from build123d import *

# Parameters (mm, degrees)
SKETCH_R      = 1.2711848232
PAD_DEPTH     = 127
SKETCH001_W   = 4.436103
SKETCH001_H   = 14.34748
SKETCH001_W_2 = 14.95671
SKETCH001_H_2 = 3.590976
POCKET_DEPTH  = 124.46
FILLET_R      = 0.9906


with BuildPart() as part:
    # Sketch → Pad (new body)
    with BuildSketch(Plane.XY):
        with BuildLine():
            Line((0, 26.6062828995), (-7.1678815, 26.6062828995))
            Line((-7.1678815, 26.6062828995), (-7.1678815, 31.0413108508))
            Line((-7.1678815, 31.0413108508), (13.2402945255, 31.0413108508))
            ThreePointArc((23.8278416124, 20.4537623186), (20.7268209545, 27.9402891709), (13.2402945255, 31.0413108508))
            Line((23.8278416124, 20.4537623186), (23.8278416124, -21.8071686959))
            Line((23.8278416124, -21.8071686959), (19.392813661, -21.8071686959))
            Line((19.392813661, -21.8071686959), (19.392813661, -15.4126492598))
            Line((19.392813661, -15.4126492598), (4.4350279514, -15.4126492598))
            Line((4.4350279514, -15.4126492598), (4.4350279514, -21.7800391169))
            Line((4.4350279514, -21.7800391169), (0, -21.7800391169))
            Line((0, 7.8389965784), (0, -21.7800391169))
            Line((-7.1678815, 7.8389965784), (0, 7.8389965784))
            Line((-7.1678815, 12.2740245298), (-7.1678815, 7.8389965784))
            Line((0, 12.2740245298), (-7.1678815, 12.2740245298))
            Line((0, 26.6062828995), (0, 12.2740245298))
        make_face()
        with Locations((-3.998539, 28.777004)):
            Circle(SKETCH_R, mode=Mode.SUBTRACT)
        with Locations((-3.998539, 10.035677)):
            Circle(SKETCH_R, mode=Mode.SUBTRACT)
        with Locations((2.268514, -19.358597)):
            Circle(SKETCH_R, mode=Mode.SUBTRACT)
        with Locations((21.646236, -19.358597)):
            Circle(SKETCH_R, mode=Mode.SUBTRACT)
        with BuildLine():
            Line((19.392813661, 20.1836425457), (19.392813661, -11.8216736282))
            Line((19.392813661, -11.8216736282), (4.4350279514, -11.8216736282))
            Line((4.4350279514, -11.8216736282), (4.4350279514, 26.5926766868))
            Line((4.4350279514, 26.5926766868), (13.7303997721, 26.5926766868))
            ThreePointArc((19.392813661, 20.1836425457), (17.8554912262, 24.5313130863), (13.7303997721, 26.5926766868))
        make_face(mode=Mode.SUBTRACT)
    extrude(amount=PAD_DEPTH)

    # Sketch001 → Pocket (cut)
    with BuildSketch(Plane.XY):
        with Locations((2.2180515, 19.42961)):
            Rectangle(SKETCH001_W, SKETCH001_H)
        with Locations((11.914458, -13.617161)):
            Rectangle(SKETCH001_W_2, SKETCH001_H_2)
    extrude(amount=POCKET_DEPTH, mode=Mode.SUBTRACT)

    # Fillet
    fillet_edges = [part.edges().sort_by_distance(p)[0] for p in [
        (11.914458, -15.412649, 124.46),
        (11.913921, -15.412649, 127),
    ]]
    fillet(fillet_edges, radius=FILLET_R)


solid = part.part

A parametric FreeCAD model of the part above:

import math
import FreeCAD as App
import Part
import Sketcher
Q = App.Units.Quantity


def edges_at(feature, points):
    """Names of the edges that pass closest to the given points."""
    edges = feature.Shape.Edges
    near = lambda p: min(range(len(edges)), key=lambda i: edges[i].distToShape(Part.Vertex(*p))[0])
    return sorted({f"Edge{near(p) + 1}" for p in points})


def add_polygon(sketch, points):
    """Adds a closed chain of lines whose ends are joined by coincident constraints."""
    first, n = sketch.GeometryCount, len(points)
    for a, b in zip(points, points[1:] + points[:1]):
        sketch.addGeometry(Part.LineSegment(App.Vector(*a, 0), App.Vector(*b, 0)), False)
    for i in range(n):
        sketch.addConstraint(Sketcher.Constraint("Coincident", first + i, 2, first + (i + 1) % n, 1))

doc = App.newDocument("Part")
body = doc.addObject("PartDesign::Body", "Body")

# Sketch on XY plane
sketch1 = doc.addObject("Sketcher::SketchObject", "Sketch")
body.addObject(sketch1)
sketch1.AttachmentSupport = (doc.XY_Plane, [""])
sketch1.MapMode = "FlatFace"
sketch1.addGeometry([
    Part.LineSegment(App.Vector(-7.2, 26.6, 0), App.Vector(0, 26.6, 0)),  # 0
    Part.LineSegment(App.Vector(0, 26.6, 0), App.Vector(0, 12.3, 0)),  # 1
    Part.LineSegment(App.Vector(0, 12.3, 0), App.Vector(-7.2, 12.3, 0)),  # 2
    Part.LineSegment(App.Vector(-7.2, 12.3, 0), App.Vector(-7.2, 7.8, 0)),  # 3
    Part.LineSegment(App.Vector(-7.2, 7.8, 0), App.Vector(0, 7.8, 0)),  # 4
    Part.LineSegment(App.Vector(0, 7.8, 0), App.Vector(0, -21.8, 0)),  # 5
    Part.LineSegment(App.Vector(0, -21.8, 0), App.Vector(4.4, -21.8, 0)),  # 6
    Part.LineSegment(App.Vector(4.4, -21.8, 0), App.Vector(4.4, -15.4, 0)),  # 7
    Part.LineSegment(App.Vector(4.4, -15.4, 0), App.Vector(19.4, -15.4, 0)),  # 8
    Part.LineSegment(App.Vector(19.4, -15.4, 0), App.Vector(19.4, -21.8, 0)),  # 9
    Part.LineSegment(App.Vector(19.4, -21.8, 0), App.Vector(23.8, -21.8, 0)),  # 10
    Part.LineSegment(App.Vector(23.8, -21.8, 0), App.Vector(23.8, 20.5, 0)),  # 11
    Part.ArcOfCircle(Part.Circle(App.Vector(13.2, 20.5, 0), App.Vector(0, 0, 1), 10.6), math.radians(0), math.radians(90)),  # 12
    Part.LineSegment(App.Vector(13.2, 31, 0), App.Vector(-7.2, 31, 0)),  # 13
    Part.LineSegment(App.Vector(-7.2, 31, 0), App.Vector(-7.2, 26.6, 0)),  # 14
    Part.Circle(App.Vector(21.6, -19.4, 0), App.Vector(0, 0, 1), 1.3),  # 15
    Part.Circle(App.Vector(2.3, -19.4, 0), App.Vector(0, 0, 1), 1.3),  # 16
    Part.LineSegment(App.Vector(19.4, 20.2, 0), App.Vector(19.4, -11.8, 0)),  # 17
    Part.LineSegment(App.Vector(19.4, -11.8, 0), App.Vector(4.4, -11.8, 0)),  # 18
    Part.LineSegment(App.Vector(4.4, -11.8, 0), App.Vector(4.4, 26.6, 0)),  # 19
    Part.LineSegment(App.Vector(4.4, 26.6, 0), App.Vector(13.7, 26.6, 0)),  # 20
    Part.ArcOfCircle(Part.Circle(App.Vector(13.2, 20.5, 0), App.Vector(0, 0, 1), 6.2), math.radians(-3), math.radians(85)),  # 21
    Part.Circle(App.Vector(-4, 10, 0), App.Vector(0, 0, 1), 1.3),  # 22
    Part.Circle(App.Vector(-4, 28.8, 0), App.Vector(0, 0, 1), 1.3),  # 23
], False)
sketch1.addConstraint([
    Sketcher.Constraint("Coincident", 0, 2, 1, 1),
    Sketcher.Constraint("Coincident", 1, 2, 2, 1),
    Sketcher.Constraint("Coincident", 2, 2, 3, 1),
    Sketcher.Constraint("Coincident", 3, 2, 4, 1),
    Sketcher.Constraint("Coincident", 4, 2, 5, 1),
    Sketcher.Constraint("Coincident", 5, 2, 6, 1),
    Sketcher.Constraint("Coincident", 6, 2, 7, 1),
    Sketcher.Constraint("Coincident", 7, 2, 8, 1),
    Sketcher.Constraint("Coincident", 8, 2, 9, 1),
    Sketcher.Constraint("Coincident", 9, 2, 10, 1),
    Sketcher.Constraint("Coincident", 10, 2, 11, 1),
    Sketcher.Constraint("Tangent", 11, 2, 12, 1),
    Sketcher.Constraint("Tangent", 12, 2, 13, 1),
    Sketcher.Constraint("Coincident", 13, 2, 14, 1),
    Sketcher.Constraint("Coincident", 14, 2, 0, 1),
    Sketcher.Constraint("Coincident", 17, 2, 18, 1),
    Sketcher.Constraint("Coincident", 18, 2, 19, 1),
    Sketcher.Constraint("Coincident", 19, 2, 20, 1),
    Sketcher.Constraint("Coincident", 20, 2, 21, 2),
    Sketcher.Constraint("Coincident", 21, 1, 17, 1),
    Sketcher.Constraint("Horizontal", 0),
    Sketcher.Constraint("Vertical", 1),
    Sketcher.Constraint("Horizontal", 2),
    Sketcher.Constraint("Vertical", 3),
    Sketcher.Constraint("Horizontal", 4),
    Sketcher.Constraint("Vertical", 5),
    Sketcher.Constraint("Horizontal", 6),
    Sketcher.Constraint("Vertical", 7),
    Sketcher.Constraint("Horizontal", 8),
    Sketcher.Constraint("Vertical", 9),
    Sketcher.Constraint("Horizontal", 10),
    Sketcher.Constraint("Vertical", 11),
    Sketcher.Constraint("Horizontal", 13),
    Sketcher.Constraint("Vertical", 14),
    Sketcher.Constraint("Vertical", 17),
    Sketcher.Constraint("Horizontal", 18),
    Sketcher.Constraint("Vertical", 19),
    Sketcher.Constraint("Horizontal", 20),
    Sketcher.Constraint("Coincident", 21, 3, 12, 3),
    Sketcher.Constraint("Equal", 15, 16),
    Sketcher.Constraint("Equal", 16, 22),
    Sketcher.Constraint("Equal", 22, 23),
    Sketcher.Constraint("PointOnObject", 0, 2, -2),
    Sketcher.Constraint("PointOnObject", 4, 2, -2),
    Sketcher.Constraint("Horizontal", 15, 3, 16, 3),
    Sketcher.Constraint("Vertical", 22, 3, 23, 3),
    Sketcher.Constraint("Vertical", 3, 2, 13, 2),
    Sketcher.Constraint("Vertical", 9, 2, 17, 2),
    Sketcher.Constraint("Vertical", 7, 2, 18, 2),
    Sketcher.Constraint("Equal", 6, 10),
    Sketcher.Constraint("Equal", 10, 3),
    Sketcher.Constraint("Equal", 3, 14),
    Sketcher.Constraint("Diameter", 15, Q("2.54237 mm")),
    Sketcher.Constraint("DistanceX", 0, 1, 0, 2, Q("0.2822001 in")),
    Sketcher.Constraint("Radius", 12, Q("10.587549 mm")),
    Sketcher.Constraint("Radius", 21, Q("6.158447 mm")),
    Sketcher.Constraint("DistanceX", 20, 1, 20, 2, Q("9.295372 mm")),
    Sketcher.Constraint("DistanceY", 1, 2, 1, 1, Q("14.332258 mm")),
    Sketcher.Constraint("DistanceY", 7, 1, 7, 2, Q("6.36739 mm")),
    Sketcher.Constraint("DistanceY", 9, 2, 9, 1, Q("6.394519 mm")),
    Sketcher.Constraint("DistanceY", 11, 1, 11, 2, Q("42.260931 mm")),
    Sketcher.Constraint("DistanceY", 19, 1, 19, 2, Q("38.41435 mm")),
    Sketcher.Constraint("DistanceX", -1, 1, 20, 2, Q("13.7304 mm")),
    Sketcher.Constraint("DistanceY", 16, 3, 23, 3, Q("48.135601 mm")),
    Sketcher.Constraint("DistanceX", 16, 3, 8, 2, Q("17.1243 mm")),
    Sketcher.Constraint("DistanceX", 8, 1, 8, 2, Q("14.957786 mm")),
    Sketcher.Constraint("DistanceX", 22, 3, -1, 1, Q("3.998539 mm")),
    Sketcher.Constraint("DistanceY", 5, 2, -1, 1, Q("21.780039 mm")),
    Sketcher.Constraint("DistanceY", 15, 3, 12, 3, Q("39.812359 mm")),
    Sketcher.Constraint("DistanceX", 16, 3, 15, 3, Q("19.377722 mm")),
    Sketcher.Constraint("DistanceY", 3, 2, 22, 3, Q("2.19668 mm")),
])
pad1 = doc.addObject("PartDesign::Pad", "Pad")
body.addObject(pad1)
pad1.Profile = sketch1
pad1.Length = Q("5 in")

# Sketch on XY plane
sketch2 = doc.addObject("Sketcher::SketchObject", "Sketch001")
body.addObject(sketch2)
sketch2.AttachmentSupport = (doc.XY_Plane, [""])
sketch2.MapMode = "FlatFace"
add_polygon(sketch2, [(0, 26.6), (0, 12.3), (4.4, 12.3), (4.4, 26.6)])  # lines 0-3
add_polygon(sketch2, [(4.4, -11.8), (4.4, -15.4), (19.4, -15.4), (19.4, -11.8)])  # lines 4-7
sketch2.addConstraint([
    Sketcher.Constraint("Vertical", 0),
    Sketcher.Constraint("Horizontal", 1),
    Sketcher.Constraint("Vertical", 2),
    Sketcher.Constraint("Horizontal", 3),
    Sketcher.Constraint("Vertical", 4),
    Sketcher.Constraint("Horizontal", 5),
    Sketcher.Constraint("Vertical", 6),
    Sketcher.Constraint("Horizontal", 7),
    Sketcher.Constraint("PointOnObject", 0, 2, -2),
    Sketcher.Constraint("Vertical", 2, 2, 4, 2),
    Sketcher.Constraint("DistanceX", 5, 1, 5, 2, Q("14.95671 mm")),
    Sketcher.Constraint("DistanceY", 0, 2, 0, 1, Q("14.34748 mm")),
    Sketcher.Constraint("DistanceY", 4, 2, 2, 2, Q("42.015999 mm")),
    Sketcher.Constraint("DistanceX", 1, 1, 1, 2, Q("4.436103 mm")),
    Sketcher.Constraint("DistanceY", 4, 2, 4, 1, Q("3.590976 mm")),
    Sketcher.Constraint("DistanceY", -1, 1, 0, 2, Q("12.25587 mm")),
])
pocket1 = doc.addObject("PartDesign::Pocket", "Pocket")
body.addObject(pocket1)
pocket1.Profile = sketch2
pocket1.Length = Q("4.9 in")
pocket1.Reversed = True
doc.recompute()

fillet = doc.addObject("PartDesign::Fillet", "Fillet")
body.addObject(fillet)
fillet.Base = (pocket1, edges_at(pocket1, [(11.914, -15.413, 124.46), (11.914, -15.413, 127)]))
fillet.Radius = Q("0.039 in")

doc.recompute()
